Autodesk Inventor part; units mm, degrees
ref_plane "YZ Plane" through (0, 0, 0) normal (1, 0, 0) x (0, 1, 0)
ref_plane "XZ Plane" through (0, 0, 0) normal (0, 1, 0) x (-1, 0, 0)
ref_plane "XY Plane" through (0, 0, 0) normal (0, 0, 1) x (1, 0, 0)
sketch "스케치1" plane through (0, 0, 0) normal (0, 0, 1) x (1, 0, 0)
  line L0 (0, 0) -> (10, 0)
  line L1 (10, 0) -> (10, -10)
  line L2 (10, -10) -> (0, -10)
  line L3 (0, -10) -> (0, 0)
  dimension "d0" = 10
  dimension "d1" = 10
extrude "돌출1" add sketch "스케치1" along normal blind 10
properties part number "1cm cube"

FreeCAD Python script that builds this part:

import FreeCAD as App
import Part
import Sketcher


def add_polygon(sketch, points):
    """Adds a closed chain of lines whose ends are joined by coincident constraints."""
    first, n = sketch.GeometryCount, len(points)
    for a, b in zip(points, points[1:] + points[:1]):
        sketch.addGeometry(Part.LineSegment(App.Vector(*a, 0), App.Vector(*b, 0)), False)
    for i in range(n):
        sketch.addConstraint(Sketcher.Constraint("Coincident", first + i, 2, first + (i + 1) % n, 1))

doc = App.newDocument("Part")
body = doc.addObject("PartDesign::Body", "Body")

sketch1 = body.newObject("Sketcher::SketchObject", "Sketch")
sketch1.AttachmentSupport = (doc.getObject("XY_Plane"), [""])
sketch1.MapMode = "FlatFace"
add_polygon(sketch1, [(10, 0), (0, 0), (0, -10), (10, -10)])
sketch1.addConstraint(Sketcher.Constraint("Horizontal", 0))
sketch1.addConstraint(Sketcher.Constraint("Vertical", 1))
sketch1.addConstraint(Sketcher.Constraint("Horizontal", 2))
sketch1.addConstraint(Sketcher.Constraint("Vertical", 3))
sketch1.addConstraint(Sketcher.Constraint("Coincident", 0, 2, -1, 1))
sketch1.addConstraint(Sketcher.Constraint("Equal", 2, 1))
sketch1.addConstraint(Sketcher.Constraint("DistanceX", 0, 2, 0, 1, 10.0))
pad1 = body.newObject("PartDesign::Pad", "Pad")
pad1.Profile = sketch1
pad1.Length = 10

doc.recompute()
